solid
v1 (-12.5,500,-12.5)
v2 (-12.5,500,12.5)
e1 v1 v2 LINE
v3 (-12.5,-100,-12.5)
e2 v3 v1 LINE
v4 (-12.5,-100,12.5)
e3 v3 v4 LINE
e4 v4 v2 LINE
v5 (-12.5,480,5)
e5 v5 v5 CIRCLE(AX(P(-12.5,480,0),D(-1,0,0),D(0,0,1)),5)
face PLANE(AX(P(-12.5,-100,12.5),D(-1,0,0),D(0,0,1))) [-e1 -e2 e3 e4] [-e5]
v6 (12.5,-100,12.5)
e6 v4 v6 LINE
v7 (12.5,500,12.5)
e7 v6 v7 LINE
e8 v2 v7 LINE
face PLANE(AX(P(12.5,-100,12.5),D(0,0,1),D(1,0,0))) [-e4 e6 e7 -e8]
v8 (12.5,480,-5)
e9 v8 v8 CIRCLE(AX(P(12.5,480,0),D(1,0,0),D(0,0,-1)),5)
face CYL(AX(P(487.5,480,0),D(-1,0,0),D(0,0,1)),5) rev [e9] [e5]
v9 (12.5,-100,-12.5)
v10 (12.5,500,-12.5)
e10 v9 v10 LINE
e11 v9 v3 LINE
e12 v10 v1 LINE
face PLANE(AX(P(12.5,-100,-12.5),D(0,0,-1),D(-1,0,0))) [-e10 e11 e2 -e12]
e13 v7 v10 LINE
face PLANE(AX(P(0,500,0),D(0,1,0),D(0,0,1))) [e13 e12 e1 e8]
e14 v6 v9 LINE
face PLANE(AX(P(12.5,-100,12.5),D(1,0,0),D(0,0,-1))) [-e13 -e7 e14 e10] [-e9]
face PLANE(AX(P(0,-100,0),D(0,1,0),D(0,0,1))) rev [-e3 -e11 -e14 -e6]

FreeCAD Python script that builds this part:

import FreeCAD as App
import Part
import Sketcher


def add_polygon(sketch, points):
    """Adds a closed chain of lines whose ends are joined by coincident constraints."""
    first, n = sketch.GeometryCount, len(points)
    for a, b in zip(points, points[1:] + points[:1]):
        sketch.addGeometry(Part.LineSegment(App.Vector(*a, 0), App.Vector(*b, 0)), False)
    for i in range(n):
        sketch.addConstraint(Sketcher.Constraint("Coincident", first + i, 2, first + (i + 1) % n, 1))

doc = App.newDocument("Part")
body = doc.addObject("PartDesign::Body", "Body")

# Sketch on XZ plane
sketch1 = doc.addObject("Sketcher::SketchObject", "Sketch")
body.addObject(sketch1)
sketch1.AttachmentSupport = (doc.XZ_Plane, [""])
sketch1.MapMode = "FlatFace"
add_polygon(sketch1, [(-12, -12), (-12, 12), (12, 12), (12, -12)])  # lines 0-3
sketch1.addConstraint([
    Sketcher.Constraint("Vertical", 0),
    Sketcher.Constraint("Horizontal", 1),
    Sketcher.Constraint("Vertical", 2),
    Sketcher.Constraint("Horizontal", 3),
    Sketcher.Constraint("Symmetric", 0, 2, 2, 2, -1, 1),
    Sketcher.Constraint("Equal", 3, 0),
    Sketcher.Constraint("DistanceX", 1, 1, 1, 2, 25.0),
])
pad1 = doc.addObject("PartDesign::Pad", "Pad")
body.addObject(pad1)
pad1.Profile = sketch1
pad1.Type = "TwoLengths"
pad1.Length = 500
pad1.Length2 = 100
pad1.Reversed = True

# Sketch on YZ plane
sketch2 = doc.addObject("Sketcher::SketchObject", "Sketch001")
body.addObject(sketch2)
sketch2.AttachmentSupport = (doc.YZ_Plane, [""])
sketch2.MapMode = "FlatFace"
sketch2.AttachmentOffset = App.Placement(App.Vector(0, 0, -12.5), App.Rotation())
sketch2.addGeometry(Part.Circle(App.Vector(480, 0, 0), App.Vector(0, 0, 1), 5), False)
sketch2.addConstraint([
    Sketcher.Constraint("PointOnObject", 0, 3, -1),
    Sketcher.Constraint("Diameter", 0, 10.0),
    Sketcher.Constraint("DistanceX", -1, 1, 0, 3, 480.0),
])
pocket1 = doc.addObject("PartDesign::Pocket", "Pocket")
body.addObject(pocket1)
pocket1.Profile = sketch2
pocket1.Length = 500
pocket1.Reversed = True

doc.recompute()
